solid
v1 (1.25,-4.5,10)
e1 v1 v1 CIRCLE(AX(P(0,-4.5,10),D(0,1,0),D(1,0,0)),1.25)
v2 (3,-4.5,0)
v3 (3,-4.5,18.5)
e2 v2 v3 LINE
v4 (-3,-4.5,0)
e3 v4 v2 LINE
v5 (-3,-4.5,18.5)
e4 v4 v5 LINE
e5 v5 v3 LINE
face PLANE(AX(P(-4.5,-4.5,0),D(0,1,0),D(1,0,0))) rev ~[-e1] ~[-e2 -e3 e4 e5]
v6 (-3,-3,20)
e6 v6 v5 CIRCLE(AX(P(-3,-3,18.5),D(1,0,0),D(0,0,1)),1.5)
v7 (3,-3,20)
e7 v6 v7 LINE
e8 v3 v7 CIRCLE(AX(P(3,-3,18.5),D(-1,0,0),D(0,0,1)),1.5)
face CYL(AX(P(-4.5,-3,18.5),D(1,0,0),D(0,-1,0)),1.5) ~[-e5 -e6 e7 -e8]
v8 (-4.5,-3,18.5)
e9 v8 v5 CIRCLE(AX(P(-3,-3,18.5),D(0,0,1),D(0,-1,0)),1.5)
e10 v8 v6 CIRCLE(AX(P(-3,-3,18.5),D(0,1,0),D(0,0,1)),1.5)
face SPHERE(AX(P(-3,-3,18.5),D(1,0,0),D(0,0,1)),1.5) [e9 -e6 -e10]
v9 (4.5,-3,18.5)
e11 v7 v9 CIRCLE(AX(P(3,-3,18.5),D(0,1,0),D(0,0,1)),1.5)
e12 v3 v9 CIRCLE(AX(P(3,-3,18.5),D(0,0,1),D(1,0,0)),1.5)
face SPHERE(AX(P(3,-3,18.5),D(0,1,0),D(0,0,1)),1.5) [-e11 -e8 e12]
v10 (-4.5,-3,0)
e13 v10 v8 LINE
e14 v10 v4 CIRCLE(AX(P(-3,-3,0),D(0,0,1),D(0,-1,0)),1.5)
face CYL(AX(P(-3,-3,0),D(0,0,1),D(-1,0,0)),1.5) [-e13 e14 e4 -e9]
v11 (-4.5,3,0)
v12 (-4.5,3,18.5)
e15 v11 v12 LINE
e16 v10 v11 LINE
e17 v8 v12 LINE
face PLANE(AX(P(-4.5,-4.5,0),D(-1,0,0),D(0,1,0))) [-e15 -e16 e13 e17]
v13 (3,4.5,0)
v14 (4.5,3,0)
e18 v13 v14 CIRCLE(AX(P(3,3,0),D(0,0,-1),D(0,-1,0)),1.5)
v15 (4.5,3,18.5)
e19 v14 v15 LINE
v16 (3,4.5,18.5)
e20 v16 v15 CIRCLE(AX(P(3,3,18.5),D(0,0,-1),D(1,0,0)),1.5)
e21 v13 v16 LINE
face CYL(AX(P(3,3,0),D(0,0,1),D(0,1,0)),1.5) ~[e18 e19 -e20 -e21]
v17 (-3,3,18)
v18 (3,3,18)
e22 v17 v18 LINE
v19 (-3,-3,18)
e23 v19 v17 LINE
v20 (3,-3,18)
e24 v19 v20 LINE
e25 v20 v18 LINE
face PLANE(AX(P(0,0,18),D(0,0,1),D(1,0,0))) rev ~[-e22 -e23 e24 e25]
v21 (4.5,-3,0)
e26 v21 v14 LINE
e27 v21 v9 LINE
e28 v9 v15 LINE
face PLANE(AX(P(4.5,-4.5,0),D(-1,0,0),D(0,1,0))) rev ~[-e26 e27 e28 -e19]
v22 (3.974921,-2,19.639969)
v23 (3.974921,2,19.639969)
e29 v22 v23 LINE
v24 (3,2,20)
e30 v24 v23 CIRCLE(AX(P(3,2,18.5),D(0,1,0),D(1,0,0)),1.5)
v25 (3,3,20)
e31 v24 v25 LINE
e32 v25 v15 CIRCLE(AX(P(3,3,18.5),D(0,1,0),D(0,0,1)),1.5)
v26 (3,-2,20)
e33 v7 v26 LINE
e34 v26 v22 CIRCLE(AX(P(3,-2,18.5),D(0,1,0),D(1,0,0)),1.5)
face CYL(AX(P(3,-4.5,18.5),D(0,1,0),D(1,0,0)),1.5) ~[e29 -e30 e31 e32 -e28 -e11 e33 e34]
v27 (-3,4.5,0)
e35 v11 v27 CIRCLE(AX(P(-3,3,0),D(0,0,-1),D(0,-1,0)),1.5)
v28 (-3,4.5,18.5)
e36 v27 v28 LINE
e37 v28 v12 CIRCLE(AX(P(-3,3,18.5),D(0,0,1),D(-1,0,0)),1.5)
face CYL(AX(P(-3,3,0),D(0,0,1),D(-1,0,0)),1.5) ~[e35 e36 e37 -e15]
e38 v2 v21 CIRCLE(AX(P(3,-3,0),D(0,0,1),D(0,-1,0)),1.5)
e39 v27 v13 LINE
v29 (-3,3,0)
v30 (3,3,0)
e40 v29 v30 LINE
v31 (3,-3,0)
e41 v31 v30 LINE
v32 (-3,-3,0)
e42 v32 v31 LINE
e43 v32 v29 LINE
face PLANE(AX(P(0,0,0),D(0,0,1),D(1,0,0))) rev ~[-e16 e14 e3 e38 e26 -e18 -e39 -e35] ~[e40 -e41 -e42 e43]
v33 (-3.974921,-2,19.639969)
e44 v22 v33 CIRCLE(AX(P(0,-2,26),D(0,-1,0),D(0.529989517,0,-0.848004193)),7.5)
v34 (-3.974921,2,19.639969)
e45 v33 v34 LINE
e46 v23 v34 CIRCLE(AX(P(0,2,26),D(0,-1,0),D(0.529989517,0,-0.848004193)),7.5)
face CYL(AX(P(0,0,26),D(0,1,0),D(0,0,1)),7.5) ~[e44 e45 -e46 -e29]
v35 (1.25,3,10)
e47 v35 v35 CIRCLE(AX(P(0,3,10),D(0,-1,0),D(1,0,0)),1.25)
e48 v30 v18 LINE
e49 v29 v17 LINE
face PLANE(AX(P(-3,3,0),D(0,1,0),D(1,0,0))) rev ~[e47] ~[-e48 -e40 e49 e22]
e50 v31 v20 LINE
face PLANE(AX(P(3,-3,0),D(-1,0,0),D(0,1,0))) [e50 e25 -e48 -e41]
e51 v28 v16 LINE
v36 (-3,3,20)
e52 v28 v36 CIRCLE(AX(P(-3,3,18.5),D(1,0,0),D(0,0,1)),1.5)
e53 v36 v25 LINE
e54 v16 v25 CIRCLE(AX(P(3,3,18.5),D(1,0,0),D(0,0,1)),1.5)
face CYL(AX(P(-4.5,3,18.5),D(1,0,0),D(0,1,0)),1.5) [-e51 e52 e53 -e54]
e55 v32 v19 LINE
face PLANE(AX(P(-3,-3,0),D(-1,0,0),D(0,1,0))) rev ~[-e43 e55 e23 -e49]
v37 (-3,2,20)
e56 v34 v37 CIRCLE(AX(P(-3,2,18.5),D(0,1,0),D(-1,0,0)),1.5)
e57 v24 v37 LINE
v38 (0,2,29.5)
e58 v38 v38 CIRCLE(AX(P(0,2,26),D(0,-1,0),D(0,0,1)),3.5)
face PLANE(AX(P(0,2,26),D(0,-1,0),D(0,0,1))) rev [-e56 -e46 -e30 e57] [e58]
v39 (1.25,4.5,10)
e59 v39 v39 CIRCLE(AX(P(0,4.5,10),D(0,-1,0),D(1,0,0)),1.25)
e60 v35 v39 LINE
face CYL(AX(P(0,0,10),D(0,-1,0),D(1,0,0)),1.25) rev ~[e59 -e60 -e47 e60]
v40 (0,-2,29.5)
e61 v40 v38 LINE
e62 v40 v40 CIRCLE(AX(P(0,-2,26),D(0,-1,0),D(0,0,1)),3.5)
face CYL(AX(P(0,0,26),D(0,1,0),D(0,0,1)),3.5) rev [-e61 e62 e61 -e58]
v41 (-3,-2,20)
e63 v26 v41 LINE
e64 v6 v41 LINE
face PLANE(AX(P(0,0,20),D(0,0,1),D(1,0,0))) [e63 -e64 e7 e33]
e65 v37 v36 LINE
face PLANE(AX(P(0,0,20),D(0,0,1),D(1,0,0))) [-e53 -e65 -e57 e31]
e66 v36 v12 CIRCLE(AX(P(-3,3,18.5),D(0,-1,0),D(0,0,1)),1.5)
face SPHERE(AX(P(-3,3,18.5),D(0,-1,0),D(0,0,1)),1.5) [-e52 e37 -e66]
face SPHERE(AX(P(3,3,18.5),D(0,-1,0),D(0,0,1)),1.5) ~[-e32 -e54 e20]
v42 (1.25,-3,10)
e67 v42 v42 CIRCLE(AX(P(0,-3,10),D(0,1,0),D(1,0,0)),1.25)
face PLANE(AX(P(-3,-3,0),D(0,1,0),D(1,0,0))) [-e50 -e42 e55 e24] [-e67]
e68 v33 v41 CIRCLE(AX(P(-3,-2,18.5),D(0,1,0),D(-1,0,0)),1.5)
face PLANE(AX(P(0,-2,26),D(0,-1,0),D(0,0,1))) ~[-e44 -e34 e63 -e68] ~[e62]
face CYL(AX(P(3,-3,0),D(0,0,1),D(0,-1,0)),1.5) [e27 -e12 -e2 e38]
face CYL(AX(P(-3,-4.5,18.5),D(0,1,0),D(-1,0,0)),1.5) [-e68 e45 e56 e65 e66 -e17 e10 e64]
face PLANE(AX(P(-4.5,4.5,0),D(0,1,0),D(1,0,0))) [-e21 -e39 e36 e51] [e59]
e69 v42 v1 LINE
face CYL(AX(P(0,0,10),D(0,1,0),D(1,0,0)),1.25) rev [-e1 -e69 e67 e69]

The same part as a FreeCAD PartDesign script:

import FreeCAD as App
import Part
import Sketcher


def edges_at(feature, points):
    """Names of the edges that pass closest to the given points."""
    edges = feature.Shape.Edges
    near = lambda p: min(range(len(edges)), key=lambda i: edges[i].distToShape(Part.Vertex(*p))[0])
    return sorted({f"Edge{near(p) + 1}" for p in points})


def add_polygon(sketch, points):
    """Adds a closed chain of lines whose ends are joined by coincident constraints."""
    first, n = sketch.GeometryCount, len(points)
    for a, b in zip(points, points[1:] + points[:1]):
        sketch.addGeometry(Part.LineSegment(App.Vector(*a, 0), App.Vector(*b, 0)), False)
    for i in range(n):
        sketch.addConstraint(Sketcher.Constraint("Coincident", first + i, 2, first + (i + 1) % n, 1))

doc = App.newDocument("Part")
body = doc.addObject("PartDesign::Body", "Body")

sketch1 = body.newObject("Sketcher::SketchObject", "Sketch")
sketch1.AttachmentSupport = (doc.getObject("XY_Plane"), [""])
sketch1.MapMode = "FlatFace"
add_polygon(sketch1, [(-4, 4), (-4, -4), (4, -4), (4, 4)])
add_polygon(sketch1, [(3, -3), (-3, -3), (-3, 3), (3, 3)])
sketch1.addConstraint(Sketcher.Constraint("Vertical", 0))
sketch1.addConstraint(Sketcher.Constraint("Horizontal", 1))
sketch1.addConstraint(Sketcher.Constraint("Vertical", 2))
sketch1.addConstraint(Sketcher.Constraint("Horizontal", 3))
sketch1.addConstraint(Sketcher.Constraint("Horizontal", 4))
sketch1.addConstraint(Sketcher.Constraint("Vertical", 5))
sketch1.addConstraint(Sketcher.Constraint("Horizontal", 6))
sketch1.addConstraint(Sketcher.Constraint("Vertical", 7))
sketch1.addConstraint(Sketcher.Constraint("Symmetric", 0, 2, 2, 2, -1, 1))
sketch1.addConstraint(Sketcher.Constraint("Symmetric", 4, 2, 6, 2, -1, 1))
sketch1.addConstraint(Sketcher.Constraint("Equal", 3, 0))
sketch1.addConstraint(Sketcher.Constraint("Equal", 6, 5))
sketch1.addConstraint(Sketcher.Constraint("DistanceX", 1, 1, 1, 2, 9.0))
sketch1.addConstraint(Sketcher.Constraint("DistanceX", 4, 2, 4, 1, 6.0))
pad1 = body.newObject("PartDesign::Pad", "Pad")
pad1.Profile = sketch1
pad1.Length = 20

sketch2 = body.newObject("Sketcher::SketchObject", "Sketch001")
sketch2.AttachmentSupport = (doc.getObject("XY_Plane"), [""])
sketch2.MapMode = "FlatFace"
sketch2.AttachmentOffset = App.Placement(App.Vector(0, 0, 18), App.Rotation())
add_polygon(sketch2, [(-3, 3), (-3, -3), (3, -3), (3, 3)])
sketch2.addConstraint(Sketcher.Constraint("Vertical", 0))
sketch2.addConstraint(Sketcher.Constraint("Horizontal", 1))
sketch2.addConstraint(Sketcher.Constraint("Vertical", 2))
sketch2.addConstraint(Sketcher.Constraint("Horizontal", 3))
sketch2.addConstraint(Sketcher.Constraint("Symmetric", 0, 2, 2, 2, -1, 1))
sketch2.addConstraint(Sketcher.Constraint("Equal", 3, 0))
sketch2.addConstraint(Sketcher.Constraint("DistanceX", 1, 1, 1, 2, 6.0))
pad2 = body.newObject("PartDesign::Pad", "Pad001")
pad2.Profile = sketch2
pad2.Length = 2
doc.recompute()

fillet = body.newObject("PartDesign::Fillet", "Fillet")
fillet.Base = (pad2, edges_at(pad2, [
    (4.5, 0, 20),
    (0, -4.5, 20),
    (-4.5, 0, 20),
    (0, 4.5, 20),
    (4.5, -4.5, 10),
    (4.5, 4.5, 10),
    (-4.5, -4.5, 10),
    (-4.5, 4.5, 10),
]))
fillet.Radius = 1.5

sketch3 = body.newObject("Sketcher::SketchObject", "Sketch002")
sketch3.AttachmentSupport = (doc.getObject("YZ_Plane"), [""])
sketch3.MapMode = "FlatFace"
add_polygon(sketch3, [(-2, 33.5), (-2, 29.5), (2, 29.5), (2, 33.5)])
sketch3.addGeometry(Part.LineSegment(App.Vector(2, 26, 0), App.Vector(-2, 26, 0)), True)
sketch3.addConstraint(Sketcher.Constraint("Vertical", 0))
sketch3.addConstraint(Sketcher.Constraint("Horizontal", 1))
sketch3.addConstraint(Sketcher.Constraint("Vertical", 2))
sketch3.addConstraint(Sketcher.Constraint("Horizontal", 3))
sketch3.addConstraint(Sketcher.Constraint("Horizontal", 4))
sketch3.addConstraint(Sketcher.Constraint("Vertical", 2, 2, 4, 1))
sketch3.addConstraint(Sketcher.Constraint("Vertical", 3, 2, 4, 2))
sketch3.addConstraint(Sketcher.Constraint("Equal", 4, 0))
sketch3.addConstraint(Sketcher.Constraint("DistanceX", 1, 1, 1, 2, 4.0))
sketch3.addConstraint(Sketcher.Constraint("DistanceX", 0, 2, -1, 1, 2.0))
sketch3.addConstraint(Sketcher.Constraint("DistanceY", -1, 1, 4, 1, 26.0))
sketch3.addConstraint(Sketcher.Constraint("DistanceY", -1, 1, 0, 2, 29.5))
revolution = body.newObject("PartDesign::Revolution", "Revolution")
revolution.Profile = sketch3
revolution.ReferenceAxis = (sketch3, ["Axis0"])
revolution.Angle = 360

sketch4 = body.newObject("Sketcher::SketchObject", "Sketch003")
sketch4.AttachmentSupport = (doc.getObject("XZ_Plane"), [""])
sketch4.MapMode = "FlatFace"
sketch4.addGeometry(Part.Circle(App.Vector(0, 10, 0), App.Vector(0, 0, 1), 1.2), False)
sketch4.addConstraint(Sketcher.Constraint("PointOnObject", 0, 3, -2))
sketch4.addConstraint(Sketcher.Constraint("Diameter", 0, 2.5))
sketch4.addConstraint(Sketcher.Constraint("DistanceY", -1, 1, 0, 3, 10.0))
pocket1 = body.newObject("PartDesign::Pocket", "Pocket")
pocket1.Profile = sketch4
pocket1.Type = "ThroughAll"
pocket1.Midplane = True

doc.recompute()
